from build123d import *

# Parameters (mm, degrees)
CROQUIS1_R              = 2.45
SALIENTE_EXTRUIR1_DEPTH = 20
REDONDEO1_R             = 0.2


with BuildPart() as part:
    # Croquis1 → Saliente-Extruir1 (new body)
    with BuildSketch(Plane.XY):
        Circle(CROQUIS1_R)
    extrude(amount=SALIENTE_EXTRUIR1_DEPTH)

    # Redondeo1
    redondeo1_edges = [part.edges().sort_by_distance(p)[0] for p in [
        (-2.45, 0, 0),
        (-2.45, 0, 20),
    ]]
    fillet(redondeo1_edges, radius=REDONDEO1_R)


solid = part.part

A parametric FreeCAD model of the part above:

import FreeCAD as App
import Part
import Sketcher
from FreeCAD import Vector
Q = App.Units.Quantity


def edges_at(feature, points):
    """Names of the edges that pass closest to the given points."""
    edges = feature.Shape.Edges
    near = lambda p: min(range(len(edges)), key=lambda i: edges[i].distToShape(Part.Vertex(*p))[0])
    return sorted({f"Edge{near(p) + 1}" for p in points})

doc = App.newDocument("Part")
body = doc.addObject("PartDesign::Body", "Body")

# Sketch on XY plane
sketch1 = doc.addObject("Sketcher::SketchObject", "Sketch")
body.addObject(sketch1)
sketch1.AttachmentSupport = (doc.XY_Plane, [""])
sketch1.MapMode = "FlatFace"
sketch1.addGeometry(Part.Circle(Vector(0, 0, 0), Vector(0, 0, 1), 2.5), False)
sketch1.addConstraint([
    Sketcher.Constraint("Coincident", 0, 3, -1, 1),
    Sketcher.Constraint("Diameter", 0, Q("4.9 mm")),
])
pad1 = doc.addObject("PartDesign::Pad", "Pad")
body.addObject(pad1)
pad1.Profile = sketch1
pad1.Length = 20
doc.recompute()

fillet = doc.addObject("PartDesign::Fillet", "Fillet")
body.addObject(fillet)
fillet.Base = (pad1, edges_at(pad1, [(-2.45, 0, 0), (-2.45, 0, 20)]))
fillet.Radius = 0.2

doc.recompute()
